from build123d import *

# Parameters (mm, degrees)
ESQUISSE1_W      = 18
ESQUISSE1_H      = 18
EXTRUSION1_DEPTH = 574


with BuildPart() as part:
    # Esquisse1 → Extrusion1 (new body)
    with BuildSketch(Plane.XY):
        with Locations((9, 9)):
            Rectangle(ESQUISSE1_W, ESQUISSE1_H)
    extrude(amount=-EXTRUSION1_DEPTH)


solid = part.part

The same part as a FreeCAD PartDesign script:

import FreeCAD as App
import Part
import Sketcher

V = App.Vector
Q = App.Units.Quantity


def add_polygon(sketch, points):
    """Adds a closed chain of lines whose ends are joined by coincident constraints."""
    first, n = sketch.GeometryCount, len(points)
    for a, b in zip(points, points[1:] + points[:1]):
        sketch.addGeometry(Part.LineSegment(App.Vector(*a, 0), App.Vector(*b, 0)), False)
    for i in range(n):
        sketch.addConstraint(Sketcher.Constraint("Coincident", first + i, 2, first + (i + 1) % n, 1))

doc = App.newDocument("Part")
params = doc.addObject("Spreadsheet::Sheet", "Params")
for row, (alias, value) in enumerate([
    ("sketch1_width", "18 mm"),
    ("pad1_length", "574 mm"),
], start=1):
    params.set(f"A{row}", alias)
    params.set(f"B{row}", "=" + value)
    params.setAlias(f"B{row}", alias)

body = doc.addObject("PartDesign::Body", "Body")

# Sketch on XY plane
sketch1 = body.newObject("Sketcher::SketchObject", "Sketch")
sketch1.AttachmentSupport = (doc.getObject("XY_Plane"), [""])
sketch1.MapMode = "FlatFace"
add_polygon(sketch1, [(0, 18), (0, 0), (18, 0), (18, 18)])  # lines 0-3
sketch1.addConstraint([
    Sketcher.Constraint("Vertical", 0),
    Sketcher.Constraint("Horizontal", 1),
    Sketcher.Constraint("Vertical", 2),
    Sketcher.Constraint("Horizontal", 3),
    Sketcher.Constraint("Coincident", 0, 2, -1, 1),
    Sketcher.Constraint("Equal", 3, 0),
    Sketcher.Constraint("DistanceX", 1, 1, 1, 2, Q("18 mm")),
])
sketch1.setExpression("Constraints[10]", "Params.sketch1_width")
pad1 = body.newObject("PartDesign::Pad", "Pad")
pad1.Profile = sketch1
pad1.setExpression("Length", "Params.pad1_length")
pad1.Reversed = True

doc.recompute()
